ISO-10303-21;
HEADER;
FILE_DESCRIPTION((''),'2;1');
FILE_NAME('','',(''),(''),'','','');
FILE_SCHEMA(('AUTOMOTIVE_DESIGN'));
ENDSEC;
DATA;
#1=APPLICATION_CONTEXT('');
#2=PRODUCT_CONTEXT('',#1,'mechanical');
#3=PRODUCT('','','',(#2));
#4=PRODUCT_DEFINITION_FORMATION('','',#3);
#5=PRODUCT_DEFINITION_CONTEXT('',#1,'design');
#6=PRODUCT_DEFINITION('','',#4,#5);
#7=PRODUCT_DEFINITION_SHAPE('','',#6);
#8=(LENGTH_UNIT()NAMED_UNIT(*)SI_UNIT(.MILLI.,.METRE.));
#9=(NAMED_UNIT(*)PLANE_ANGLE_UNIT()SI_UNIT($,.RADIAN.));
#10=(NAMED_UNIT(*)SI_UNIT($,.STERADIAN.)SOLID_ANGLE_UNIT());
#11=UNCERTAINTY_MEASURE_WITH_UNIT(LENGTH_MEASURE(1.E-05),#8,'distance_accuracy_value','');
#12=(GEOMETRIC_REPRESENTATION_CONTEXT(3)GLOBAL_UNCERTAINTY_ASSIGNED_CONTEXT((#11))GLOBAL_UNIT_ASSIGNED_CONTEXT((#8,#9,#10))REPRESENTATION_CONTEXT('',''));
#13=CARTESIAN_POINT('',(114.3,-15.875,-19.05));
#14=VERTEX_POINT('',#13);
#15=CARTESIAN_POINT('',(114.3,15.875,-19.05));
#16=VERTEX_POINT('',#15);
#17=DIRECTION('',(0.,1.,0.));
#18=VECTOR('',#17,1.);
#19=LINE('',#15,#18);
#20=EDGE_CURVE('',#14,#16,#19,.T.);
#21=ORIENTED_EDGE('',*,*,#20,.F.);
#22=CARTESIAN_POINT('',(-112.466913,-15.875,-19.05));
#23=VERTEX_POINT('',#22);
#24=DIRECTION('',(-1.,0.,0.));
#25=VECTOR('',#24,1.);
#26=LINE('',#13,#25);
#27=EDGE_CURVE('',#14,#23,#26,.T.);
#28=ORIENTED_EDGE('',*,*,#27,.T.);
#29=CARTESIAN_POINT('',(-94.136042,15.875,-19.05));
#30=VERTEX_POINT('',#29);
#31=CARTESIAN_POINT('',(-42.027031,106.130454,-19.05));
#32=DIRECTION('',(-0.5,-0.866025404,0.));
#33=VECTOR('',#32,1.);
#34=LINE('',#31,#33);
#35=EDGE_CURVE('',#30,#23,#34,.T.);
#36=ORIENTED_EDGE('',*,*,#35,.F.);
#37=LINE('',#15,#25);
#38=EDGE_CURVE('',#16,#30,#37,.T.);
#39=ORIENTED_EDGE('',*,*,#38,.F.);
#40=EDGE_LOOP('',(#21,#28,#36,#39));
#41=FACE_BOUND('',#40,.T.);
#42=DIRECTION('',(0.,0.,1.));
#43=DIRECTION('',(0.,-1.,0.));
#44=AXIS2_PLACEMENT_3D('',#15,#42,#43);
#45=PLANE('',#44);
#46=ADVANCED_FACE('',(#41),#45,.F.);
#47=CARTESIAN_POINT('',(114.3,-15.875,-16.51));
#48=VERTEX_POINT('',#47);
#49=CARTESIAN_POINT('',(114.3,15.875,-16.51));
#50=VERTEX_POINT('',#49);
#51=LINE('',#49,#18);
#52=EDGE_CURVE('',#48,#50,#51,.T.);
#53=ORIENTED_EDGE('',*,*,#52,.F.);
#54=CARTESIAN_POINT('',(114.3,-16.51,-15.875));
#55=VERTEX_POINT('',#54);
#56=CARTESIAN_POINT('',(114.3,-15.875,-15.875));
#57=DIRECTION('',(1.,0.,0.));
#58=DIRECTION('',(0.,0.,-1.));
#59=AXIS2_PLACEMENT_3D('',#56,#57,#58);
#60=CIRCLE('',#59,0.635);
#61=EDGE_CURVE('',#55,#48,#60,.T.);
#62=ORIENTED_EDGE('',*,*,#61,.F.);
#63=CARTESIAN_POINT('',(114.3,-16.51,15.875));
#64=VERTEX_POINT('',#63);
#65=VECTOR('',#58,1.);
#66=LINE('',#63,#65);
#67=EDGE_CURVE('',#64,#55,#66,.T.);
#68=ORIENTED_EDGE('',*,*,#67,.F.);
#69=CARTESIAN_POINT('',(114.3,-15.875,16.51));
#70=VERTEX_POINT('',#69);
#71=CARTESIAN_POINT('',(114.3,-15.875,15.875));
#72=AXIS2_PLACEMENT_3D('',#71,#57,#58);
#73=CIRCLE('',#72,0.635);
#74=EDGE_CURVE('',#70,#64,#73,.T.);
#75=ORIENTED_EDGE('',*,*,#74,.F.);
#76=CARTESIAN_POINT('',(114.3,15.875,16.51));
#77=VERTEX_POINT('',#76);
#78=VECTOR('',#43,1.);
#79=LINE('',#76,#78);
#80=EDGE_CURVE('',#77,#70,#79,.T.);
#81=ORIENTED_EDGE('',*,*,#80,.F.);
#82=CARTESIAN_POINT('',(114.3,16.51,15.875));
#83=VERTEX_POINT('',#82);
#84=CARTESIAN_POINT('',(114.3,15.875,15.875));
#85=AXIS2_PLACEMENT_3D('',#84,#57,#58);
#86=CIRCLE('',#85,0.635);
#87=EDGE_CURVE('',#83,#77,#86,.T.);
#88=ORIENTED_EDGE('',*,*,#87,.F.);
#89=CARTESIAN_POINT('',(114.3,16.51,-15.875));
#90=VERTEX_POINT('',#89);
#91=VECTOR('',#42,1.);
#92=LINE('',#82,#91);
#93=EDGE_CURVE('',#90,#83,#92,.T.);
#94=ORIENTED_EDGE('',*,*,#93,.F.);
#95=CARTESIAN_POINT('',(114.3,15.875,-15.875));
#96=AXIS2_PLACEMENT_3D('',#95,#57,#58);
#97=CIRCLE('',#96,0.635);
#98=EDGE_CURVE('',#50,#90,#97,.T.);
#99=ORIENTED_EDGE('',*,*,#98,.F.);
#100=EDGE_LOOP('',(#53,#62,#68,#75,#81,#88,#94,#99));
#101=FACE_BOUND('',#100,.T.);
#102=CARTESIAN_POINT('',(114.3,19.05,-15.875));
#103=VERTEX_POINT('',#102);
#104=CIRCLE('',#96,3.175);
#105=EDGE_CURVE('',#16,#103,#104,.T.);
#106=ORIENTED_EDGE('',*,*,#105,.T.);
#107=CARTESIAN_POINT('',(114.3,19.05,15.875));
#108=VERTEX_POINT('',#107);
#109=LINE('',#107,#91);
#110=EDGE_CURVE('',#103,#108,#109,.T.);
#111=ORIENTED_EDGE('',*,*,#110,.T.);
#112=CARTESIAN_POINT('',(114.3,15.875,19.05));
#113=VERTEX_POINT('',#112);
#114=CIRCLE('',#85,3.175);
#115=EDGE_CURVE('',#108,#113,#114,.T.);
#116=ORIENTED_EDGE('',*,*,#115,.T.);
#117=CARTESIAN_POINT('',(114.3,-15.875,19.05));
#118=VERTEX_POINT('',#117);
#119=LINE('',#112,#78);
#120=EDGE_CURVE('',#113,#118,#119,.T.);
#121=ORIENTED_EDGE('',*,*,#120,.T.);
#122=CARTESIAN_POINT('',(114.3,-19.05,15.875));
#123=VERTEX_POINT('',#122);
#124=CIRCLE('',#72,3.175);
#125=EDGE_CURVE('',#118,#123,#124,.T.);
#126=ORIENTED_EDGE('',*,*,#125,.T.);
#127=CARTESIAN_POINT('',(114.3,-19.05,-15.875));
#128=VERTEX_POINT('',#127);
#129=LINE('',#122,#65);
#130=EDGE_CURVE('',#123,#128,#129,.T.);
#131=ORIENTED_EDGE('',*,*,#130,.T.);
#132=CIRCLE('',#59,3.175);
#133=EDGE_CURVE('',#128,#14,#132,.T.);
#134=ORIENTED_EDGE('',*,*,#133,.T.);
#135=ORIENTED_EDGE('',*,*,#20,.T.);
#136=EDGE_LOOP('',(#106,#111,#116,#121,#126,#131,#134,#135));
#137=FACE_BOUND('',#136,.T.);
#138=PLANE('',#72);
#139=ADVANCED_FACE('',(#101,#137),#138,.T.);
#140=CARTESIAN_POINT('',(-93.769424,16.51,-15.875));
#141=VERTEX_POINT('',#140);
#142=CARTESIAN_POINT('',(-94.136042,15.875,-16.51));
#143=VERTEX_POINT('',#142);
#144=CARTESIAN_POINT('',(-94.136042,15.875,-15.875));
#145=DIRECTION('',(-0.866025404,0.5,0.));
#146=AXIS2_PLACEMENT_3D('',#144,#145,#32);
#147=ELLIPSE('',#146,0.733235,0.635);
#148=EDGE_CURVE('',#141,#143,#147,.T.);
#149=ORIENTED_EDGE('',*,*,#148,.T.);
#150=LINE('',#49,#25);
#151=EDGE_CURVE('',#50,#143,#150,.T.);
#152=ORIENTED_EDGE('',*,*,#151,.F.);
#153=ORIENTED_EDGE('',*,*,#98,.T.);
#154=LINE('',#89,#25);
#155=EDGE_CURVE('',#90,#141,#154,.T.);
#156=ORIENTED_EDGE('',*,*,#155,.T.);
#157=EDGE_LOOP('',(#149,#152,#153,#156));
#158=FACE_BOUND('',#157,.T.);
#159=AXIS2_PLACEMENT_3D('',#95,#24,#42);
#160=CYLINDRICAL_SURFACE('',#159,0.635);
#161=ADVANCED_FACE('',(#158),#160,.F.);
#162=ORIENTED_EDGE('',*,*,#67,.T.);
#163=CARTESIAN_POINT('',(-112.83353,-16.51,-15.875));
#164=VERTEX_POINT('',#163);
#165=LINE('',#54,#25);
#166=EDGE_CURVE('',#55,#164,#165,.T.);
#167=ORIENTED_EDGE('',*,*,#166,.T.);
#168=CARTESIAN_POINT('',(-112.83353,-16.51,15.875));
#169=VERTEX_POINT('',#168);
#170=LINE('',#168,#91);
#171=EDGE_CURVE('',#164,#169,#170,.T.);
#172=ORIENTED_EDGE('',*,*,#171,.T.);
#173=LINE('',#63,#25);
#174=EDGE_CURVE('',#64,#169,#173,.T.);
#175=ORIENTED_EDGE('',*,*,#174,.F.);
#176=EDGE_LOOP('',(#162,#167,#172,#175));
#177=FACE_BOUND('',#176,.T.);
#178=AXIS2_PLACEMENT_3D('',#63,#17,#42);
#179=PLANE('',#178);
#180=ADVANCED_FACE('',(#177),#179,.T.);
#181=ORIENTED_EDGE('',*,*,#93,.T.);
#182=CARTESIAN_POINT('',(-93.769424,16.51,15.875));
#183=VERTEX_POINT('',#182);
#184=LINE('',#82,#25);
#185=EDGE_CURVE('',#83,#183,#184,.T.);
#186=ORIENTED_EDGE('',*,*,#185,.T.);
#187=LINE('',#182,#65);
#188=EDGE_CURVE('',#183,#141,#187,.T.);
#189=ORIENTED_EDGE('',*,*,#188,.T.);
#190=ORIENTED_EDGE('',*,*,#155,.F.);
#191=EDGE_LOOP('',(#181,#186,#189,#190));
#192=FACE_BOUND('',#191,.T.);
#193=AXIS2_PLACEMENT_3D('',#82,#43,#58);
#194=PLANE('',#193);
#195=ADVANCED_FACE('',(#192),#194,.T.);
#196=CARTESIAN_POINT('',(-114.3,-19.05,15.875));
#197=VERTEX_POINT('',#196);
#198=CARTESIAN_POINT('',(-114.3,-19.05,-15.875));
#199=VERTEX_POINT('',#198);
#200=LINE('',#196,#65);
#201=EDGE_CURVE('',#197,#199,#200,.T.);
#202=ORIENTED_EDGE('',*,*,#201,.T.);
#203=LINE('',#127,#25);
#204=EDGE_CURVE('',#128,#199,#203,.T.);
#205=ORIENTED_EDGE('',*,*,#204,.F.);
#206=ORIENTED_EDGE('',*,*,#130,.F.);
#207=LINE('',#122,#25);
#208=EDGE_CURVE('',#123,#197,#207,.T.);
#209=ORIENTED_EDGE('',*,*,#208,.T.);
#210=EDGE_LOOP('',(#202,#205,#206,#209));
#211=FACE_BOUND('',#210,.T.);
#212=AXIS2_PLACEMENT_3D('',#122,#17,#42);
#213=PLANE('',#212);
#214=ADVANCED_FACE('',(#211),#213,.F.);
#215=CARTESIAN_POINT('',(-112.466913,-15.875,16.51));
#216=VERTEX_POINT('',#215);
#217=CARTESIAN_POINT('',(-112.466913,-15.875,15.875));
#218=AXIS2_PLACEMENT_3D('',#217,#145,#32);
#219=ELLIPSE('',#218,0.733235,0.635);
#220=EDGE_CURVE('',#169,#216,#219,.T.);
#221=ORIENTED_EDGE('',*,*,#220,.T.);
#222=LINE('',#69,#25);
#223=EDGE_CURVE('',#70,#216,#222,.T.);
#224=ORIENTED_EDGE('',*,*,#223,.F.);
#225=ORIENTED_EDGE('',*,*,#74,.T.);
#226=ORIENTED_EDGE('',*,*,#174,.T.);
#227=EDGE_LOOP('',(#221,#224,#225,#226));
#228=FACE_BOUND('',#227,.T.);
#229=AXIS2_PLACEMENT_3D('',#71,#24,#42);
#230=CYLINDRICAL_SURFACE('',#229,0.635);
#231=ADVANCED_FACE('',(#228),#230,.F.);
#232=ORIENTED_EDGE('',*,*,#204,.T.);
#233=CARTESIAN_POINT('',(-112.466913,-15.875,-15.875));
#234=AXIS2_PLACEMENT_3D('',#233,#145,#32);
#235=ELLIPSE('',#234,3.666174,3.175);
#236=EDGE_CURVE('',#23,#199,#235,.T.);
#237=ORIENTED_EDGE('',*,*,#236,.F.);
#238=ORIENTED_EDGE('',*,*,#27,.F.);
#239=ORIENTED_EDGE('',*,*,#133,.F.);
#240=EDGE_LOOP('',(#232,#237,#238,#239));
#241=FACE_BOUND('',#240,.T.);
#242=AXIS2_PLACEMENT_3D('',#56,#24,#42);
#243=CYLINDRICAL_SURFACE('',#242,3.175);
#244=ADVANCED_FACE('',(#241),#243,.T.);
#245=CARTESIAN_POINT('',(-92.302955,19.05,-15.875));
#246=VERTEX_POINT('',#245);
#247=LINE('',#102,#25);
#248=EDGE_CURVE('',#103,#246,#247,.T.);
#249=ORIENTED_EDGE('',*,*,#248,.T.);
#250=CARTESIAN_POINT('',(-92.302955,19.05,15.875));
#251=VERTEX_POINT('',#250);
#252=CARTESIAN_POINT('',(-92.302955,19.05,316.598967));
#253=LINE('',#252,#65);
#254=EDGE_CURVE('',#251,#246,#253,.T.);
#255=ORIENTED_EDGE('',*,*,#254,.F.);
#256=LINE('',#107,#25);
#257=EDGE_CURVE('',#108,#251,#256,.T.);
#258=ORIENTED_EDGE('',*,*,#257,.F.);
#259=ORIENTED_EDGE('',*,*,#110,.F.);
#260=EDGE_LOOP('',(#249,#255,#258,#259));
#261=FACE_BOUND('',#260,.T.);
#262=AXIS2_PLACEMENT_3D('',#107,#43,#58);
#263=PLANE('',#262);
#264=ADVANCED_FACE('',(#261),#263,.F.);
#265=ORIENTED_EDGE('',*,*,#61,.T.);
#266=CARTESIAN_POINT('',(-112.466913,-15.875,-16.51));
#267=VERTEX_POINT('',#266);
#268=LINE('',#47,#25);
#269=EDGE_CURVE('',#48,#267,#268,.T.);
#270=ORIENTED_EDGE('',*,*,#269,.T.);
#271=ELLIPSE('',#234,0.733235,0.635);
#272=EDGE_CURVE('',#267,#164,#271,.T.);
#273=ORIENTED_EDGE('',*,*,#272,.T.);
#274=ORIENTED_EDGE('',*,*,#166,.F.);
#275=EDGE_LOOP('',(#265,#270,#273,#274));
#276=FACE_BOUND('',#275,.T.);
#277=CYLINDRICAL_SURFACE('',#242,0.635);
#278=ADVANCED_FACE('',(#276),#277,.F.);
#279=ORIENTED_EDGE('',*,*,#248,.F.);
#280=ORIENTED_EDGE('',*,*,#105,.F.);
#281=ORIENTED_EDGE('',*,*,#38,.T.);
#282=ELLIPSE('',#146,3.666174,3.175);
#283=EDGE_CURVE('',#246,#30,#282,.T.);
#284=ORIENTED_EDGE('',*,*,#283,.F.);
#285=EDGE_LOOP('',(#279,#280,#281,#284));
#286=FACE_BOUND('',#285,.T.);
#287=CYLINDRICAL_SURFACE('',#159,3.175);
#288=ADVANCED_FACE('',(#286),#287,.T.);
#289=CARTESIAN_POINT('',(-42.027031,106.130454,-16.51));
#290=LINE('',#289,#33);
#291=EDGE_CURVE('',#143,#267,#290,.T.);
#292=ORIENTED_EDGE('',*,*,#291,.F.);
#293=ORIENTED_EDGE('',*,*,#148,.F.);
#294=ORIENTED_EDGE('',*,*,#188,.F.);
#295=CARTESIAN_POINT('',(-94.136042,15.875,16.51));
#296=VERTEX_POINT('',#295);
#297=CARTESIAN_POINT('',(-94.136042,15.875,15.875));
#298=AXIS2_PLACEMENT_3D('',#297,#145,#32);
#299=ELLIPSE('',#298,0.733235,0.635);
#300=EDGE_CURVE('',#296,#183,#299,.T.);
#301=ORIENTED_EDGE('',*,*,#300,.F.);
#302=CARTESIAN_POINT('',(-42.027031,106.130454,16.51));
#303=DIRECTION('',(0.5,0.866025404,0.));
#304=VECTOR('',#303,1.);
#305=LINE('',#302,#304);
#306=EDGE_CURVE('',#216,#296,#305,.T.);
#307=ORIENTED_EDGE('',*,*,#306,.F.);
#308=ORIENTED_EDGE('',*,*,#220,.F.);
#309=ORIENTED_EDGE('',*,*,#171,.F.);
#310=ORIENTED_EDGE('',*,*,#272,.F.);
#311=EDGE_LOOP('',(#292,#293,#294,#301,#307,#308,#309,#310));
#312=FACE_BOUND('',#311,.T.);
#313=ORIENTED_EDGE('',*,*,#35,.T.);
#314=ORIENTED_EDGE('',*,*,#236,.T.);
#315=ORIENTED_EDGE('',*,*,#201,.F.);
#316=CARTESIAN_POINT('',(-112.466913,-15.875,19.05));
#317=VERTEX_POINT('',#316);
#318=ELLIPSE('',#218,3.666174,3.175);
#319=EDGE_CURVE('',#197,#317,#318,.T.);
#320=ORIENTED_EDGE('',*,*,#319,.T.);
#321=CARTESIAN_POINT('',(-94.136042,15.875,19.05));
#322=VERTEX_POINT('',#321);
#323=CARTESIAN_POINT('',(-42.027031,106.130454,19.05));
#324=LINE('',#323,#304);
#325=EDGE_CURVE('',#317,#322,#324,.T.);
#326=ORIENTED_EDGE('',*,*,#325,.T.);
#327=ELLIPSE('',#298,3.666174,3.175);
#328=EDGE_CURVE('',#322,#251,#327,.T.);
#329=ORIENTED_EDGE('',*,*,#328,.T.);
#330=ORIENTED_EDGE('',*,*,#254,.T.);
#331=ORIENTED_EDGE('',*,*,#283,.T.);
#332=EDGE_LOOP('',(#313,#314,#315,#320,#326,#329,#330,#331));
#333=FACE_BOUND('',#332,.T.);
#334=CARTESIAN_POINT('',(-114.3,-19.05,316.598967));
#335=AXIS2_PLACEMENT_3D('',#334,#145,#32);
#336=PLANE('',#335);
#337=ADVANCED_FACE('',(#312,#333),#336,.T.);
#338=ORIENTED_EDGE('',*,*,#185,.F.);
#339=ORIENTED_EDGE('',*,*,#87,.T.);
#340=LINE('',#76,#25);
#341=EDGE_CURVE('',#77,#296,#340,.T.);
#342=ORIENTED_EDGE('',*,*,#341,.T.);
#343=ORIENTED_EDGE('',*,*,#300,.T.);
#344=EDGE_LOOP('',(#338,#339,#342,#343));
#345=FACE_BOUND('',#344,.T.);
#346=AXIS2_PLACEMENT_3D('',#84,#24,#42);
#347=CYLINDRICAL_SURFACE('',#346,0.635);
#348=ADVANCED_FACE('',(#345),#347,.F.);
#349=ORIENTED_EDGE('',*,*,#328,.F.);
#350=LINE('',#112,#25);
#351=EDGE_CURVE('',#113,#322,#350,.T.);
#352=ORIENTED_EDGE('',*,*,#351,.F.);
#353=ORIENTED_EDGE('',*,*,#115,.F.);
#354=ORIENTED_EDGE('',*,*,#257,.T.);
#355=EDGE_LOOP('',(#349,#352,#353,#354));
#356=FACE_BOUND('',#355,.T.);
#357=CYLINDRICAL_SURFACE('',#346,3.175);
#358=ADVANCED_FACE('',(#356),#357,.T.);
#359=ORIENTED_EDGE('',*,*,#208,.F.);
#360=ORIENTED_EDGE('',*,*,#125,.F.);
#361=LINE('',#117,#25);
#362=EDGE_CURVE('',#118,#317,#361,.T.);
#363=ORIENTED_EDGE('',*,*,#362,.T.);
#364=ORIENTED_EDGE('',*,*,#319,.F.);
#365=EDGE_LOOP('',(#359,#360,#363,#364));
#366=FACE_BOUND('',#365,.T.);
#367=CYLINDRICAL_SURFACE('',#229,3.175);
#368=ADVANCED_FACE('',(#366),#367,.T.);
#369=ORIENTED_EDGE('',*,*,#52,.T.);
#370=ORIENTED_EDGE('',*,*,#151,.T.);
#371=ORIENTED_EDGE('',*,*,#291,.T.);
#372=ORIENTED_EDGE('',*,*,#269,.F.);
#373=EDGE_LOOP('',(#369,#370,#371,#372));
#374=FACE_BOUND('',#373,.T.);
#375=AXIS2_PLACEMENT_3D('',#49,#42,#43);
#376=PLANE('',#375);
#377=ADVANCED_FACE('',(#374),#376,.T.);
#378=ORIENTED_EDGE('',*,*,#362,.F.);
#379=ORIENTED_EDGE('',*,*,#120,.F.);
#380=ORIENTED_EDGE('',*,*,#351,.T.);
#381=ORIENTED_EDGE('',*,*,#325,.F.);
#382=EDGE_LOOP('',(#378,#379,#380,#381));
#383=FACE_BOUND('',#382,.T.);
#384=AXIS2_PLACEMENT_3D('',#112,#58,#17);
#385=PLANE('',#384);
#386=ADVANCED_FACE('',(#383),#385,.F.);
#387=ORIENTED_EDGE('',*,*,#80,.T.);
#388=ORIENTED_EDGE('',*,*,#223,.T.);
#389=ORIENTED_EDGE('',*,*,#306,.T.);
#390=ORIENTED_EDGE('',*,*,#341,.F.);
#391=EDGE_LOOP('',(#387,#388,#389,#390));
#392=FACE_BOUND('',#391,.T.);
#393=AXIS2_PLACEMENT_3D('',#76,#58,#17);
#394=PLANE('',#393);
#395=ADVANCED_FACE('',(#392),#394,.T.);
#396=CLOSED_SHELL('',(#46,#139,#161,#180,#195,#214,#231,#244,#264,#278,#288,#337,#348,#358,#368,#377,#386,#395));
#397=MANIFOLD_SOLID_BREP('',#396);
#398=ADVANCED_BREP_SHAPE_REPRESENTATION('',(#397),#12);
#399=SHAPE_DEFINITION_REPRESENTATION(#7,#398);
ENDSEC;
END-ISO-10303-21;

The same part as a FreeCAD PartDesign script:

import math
import FreeCAD as App
import Part
import Sketcher
Q = App.Units.Quantity

doc = App.newDocument("Part")
body = doc.addObject("PartDesign::Body", "Body")

sketch1 = doc.addObject("Sketcher::SketchObject", "Sketch")
body.addObject(sketch1)
sketch1.AttachmentSupport = (doc.YZ_Plane, [""])
sketch1.MapMode = "FlatFace"
sketch1.addGeometry(Part.LineSegment(App.Vector(19.1, -15.9, 0), App.Vector(19.1, 15.9, 0)), False)
sketch1.addGeometry(Part.ArcOfCircle(Part.Circle(App.Vector(15.9, 15.9, 0), App.Vector(0, 0, 1), 3.2), math.radians(0), math.radians(90)), False)
sketch1.addGeometry(Part.LineSegment(App.Vector(15.9, 19.1, 0), App.Vector(-15.9, 19.1, 0)), False)
sketch1.addGeometry(Part.ArcOfCircle(Part.Circle(App.Vector(-15.9, 15.9, 0), App.Vector(0, 0, 1), 3.2), math.radians(90), math.radians(180)), False)
sketch1.addGeometry(Part.LineSegment(App.Vector(-19.1, 15.9, 0), App.Vector(-19.1, -15.9, 0)), False)
sketch1.addGeometry(Part.ArcOfCircle(Part.Circle(App.Vector(-15.9, -15.9, 0), App.Vector(0, 0, 1), 3.2), math.radians(-180), math.radians(-90)), False)
sketch1.addGeometry(Part.LineSegment(App.Vector(-15.9, -19.1, 0), App.Vector(15.9, -19.1, 0)), False)
sketch1.addGeometry(Part.ArcOfCircle(Part.Circle(App.Vector(15.9, -15.9, 0), App.Vector(0, 0, 1), 3.2), math.radians(-90), math.radians(0)), False)
sketch1.addGeometry(Part.LineSegment(App.Vector(16.5, 15.9, 0), App.Vector(16.5, -15.9, 0)), False)
sketch1.addGeometry(Part.ArcOfCircle(Part.Circle(App.Vector(15.9, -15.9, 0), App.Vector(0, 0, 1), 0.6), math.radians(-90), math.radians(0)), False)
sketch1.addGeometry(Part.LineSegment(App.Vector(15.9, -16.5, 0), App.Vector(-15.9, -16.5, 0)), False)
sketch1.addGeometry(Part.ArcOfCircle(Part.Circle(App.Vector(-15.9, -15.9, 0), App.Vector(0, 0, 1), 0.6), math.radians(180), math.radians(270)), False)
sketch1.addGeometry(Part.LineSegment(App.Vector(-16.5, -15.9, 0), App.Vector(-16.5, 15.9, 0)), False)
sketch1.addGeometry(Part.ArcOfCircle(Part.Circle(App.Vector(-15.9, 15.9, 0), App.Vector(0, 0, 1), 0.6), math.radians(90), math.radians(180)), False)
sketch1.addGeometry(Part.LineSegment(App.Vector(-15.9, 16.5, 0), App.Vector(15.9, 16.5, 0)), False)
sketch1.addGeometry(Part.ArcOfCircle(Part.Circle(App.Vector(15.9, 15.9, 0), App.Vector(0, 0, 1), 0.6), math.radians(0), math.radians(90)), False)
sketch1.addConstraint(Sketcher.Constraint("Tangent", 0, 2, 1, 1))
sketch1.addConstraint(Sketcher.Constraint("Tangent", 1, 2, 2, 1))
sketch1.addConstraint(Sketcher.Constraint("Tangent", 2, 2, 3, 1))
sketch1.addConstraint(Sketcher.Constraint("Tangent", 3, 2, 4, 1))
sketch1.addConstraint(Sketcher.Constraint("Tangent", 4, 2, 5, 1))
sketch1.addConstraint(Sketcher.Constraint("Tangent", 5, 2, 6, 1))
sketch1.addConstraint(Sketcher.Constraint("Tangent", 6, 2, 7, 1))
sketch1.addConstraint(Sketcher.Constraint("Tangent", 7, 2, 0, 1))
sketch1.addConstraint(Sketcher.Constraint("Tangent", 8, 2, 9, 2))
sketch1.addConstraint(Sketcher.Constraint("Tangent", 9, 1, 10, 1))
sketch1.addConstraint(Sketcher.Constraint("Tangent", 10, 2, 11, 2))
sketch1.addConstraint(Sketcher.Constraint("Tangent", 11, 1, 12, 1))
sketch1.addConstraint(Sketcher.Constraint("Tangent", 12, 2, 13, 2))
sketch1.addConstraint(Sketcher.Constraint("Tangent", 13, 1, 14, 1))
sketch1.addConstraint(Sketcher.Constraint("Tangent", 14, 2, 15, 2))
sketch1.addConstraint(Sketcher.Constraint("Tangent", 15, 1, 8, 1))
sketch1.addConstraint(Sketcher.Constraint("Vertical", 0))
sketch1.addConstraint(Sketcher.Constraint("Horizontal", 2))
sketch1.addConstraint(Sketcher.Constraint("Vertical", 4))
sketch1.addConstraint(Sketcher.Constraint("Horizontal", 6))
sketch1.addConstraint(Sketcher.Constraint("Vertical", 8))
sketch1.addConstraint(Sketcher.Constraint("Horizontal", 10))
sketch1.addConstraint(Sketcher.Constraint("Vertical", 12))
sketch1.addConstraint(Sketcher.Constraint("Horizontal", 14))
sketch1.addConstraint(Sketcher.Constraint("Coincident", 9, 3, 7, 3))
sketch1.addConstraint(Sketcher.Constraint("Coincident", 11, 3, 5, 3))
sketch1.addConstraint(Sketcher.Constraint("Coincident", 13, 3, 3, 3))
sketch1.addConstraint(Sketcher.Constraint("Equal", 1, 3))
sketch1.addConstraint(Sketcher.Constraint("Equal", 3, 5))
sketch1.addConstraint(Sketcher.Constraint("Equal", 5, 7))
sketch1.addConstraint(Sketcher.Constraint("Equal", 13, 15))
sketch1.addConstraint(Sketcher.Constraint("Symmetric", 1, 3, 5, 3, -1, 1))
sketch1.addConstraint(Sketcher.Constraint("Equal", 14, 0))
sketch1.addConstraint(Sketcher.Constraint("Radius", 1, Q("0.125 in")))
sketch1.addConstraint(Sketcher.Constraint("Radius", 9, Q("0.025 in")))
sketch1.addConstraint(Sketcher.Constraint("DistanceX", 2, 2, 2, 1, Q("1.25 in")))
pad1 = doc.addObject("PartDesign::Pad", "Pad")
body.addObject(pad1)
pad1.Profile = sketch1
pad1.Length = Q("9 in")
pad1.Midplane = True

sketch2 = doc.addObject("Sketcher::SketchObject", "Sketch001")
body.addObject(sketch2)
sketch2.AttachmentSupport = (doc.XY_Plane, [""])
sketch2.MapMode = "FlatFace"
sketch2.AttachmentOffset = App.Placement(App.Vector(0, 0, 0.75 * 25.4), App.Rotation())
sketch2.addGeometry(Part.LineSegment(App.Vector(-351, -429, 0), App.Vector(-114, -19, 0)), False)
sketch2.addGeometry(Part.LineSegment(App.Vector(-114, -19, 0), App.Vector(-92, 19, 0)), False)
sketch2.addGeometry(Part.LineSegment(App.Vector(-92, 19, 0), App.Vector(144, 429, 0)), False)
sketch2.addGeometry(Part.LineSegment(App.Vector(144, 429, 0), App.Vector(-676, 903, 0)), False)
sketch2.addGeometry(Part.LineSegment(App.Vector(-676, 903, 0), App.Vector(-1171, 44, 0)), False)
sketch2.addGeometry(Part.LineSegment(App.Vector(-1171, 44, 0), App.Vector(-351, -429, 0)), False)
sketch2.addConstraint(Sketcher.Constraint("Coincident", 0, 2, 1, 1))
sketch2.addConstraint(Sketcher.Constraint("Coincident", 1, 2, 2, 1))
sketch2.addConstraint(Sketcher.Constraint("Coincident", 2, 2, 3, 1))
sketch2.addConstraint(Sketcher.Constraint("Coincident", 3, 2, 4, 1))
sketch2.addConstraint(Sketcher.Constraint("Coincident", 4, 2, 5, 1))
sketch2.addConstraint(Sketcher.Constraint("Coincident", 5, 2, 0, 1))
sketch2.addConstraint(Sketcher.Constraint("Parallel", 0, 1))
sketch2.addConstraint(Sketcher.Constraint("Parallel", 1, 2))
sketch2.addConstraint(Sketcher.Constraint("Perpendicular", 2, 3))
sketch2.addConstraint(Sketcher.Constraint("Perpendicular", 3, 4))
sketch2.addConstraint(Sketcher.Constraint("Perpendicular", 4, 5))
sketch2.addConstraint(Sketcher.Constraint("Equal", 0, 2))
sketch2.addConstraint(Sketcher.Constraint("Angle", 0, Q("60 deg")))
sketch2.addConstraint(Sketcher.Constraint("DistanceX", 0, 2, -1, 1, Q("4.5 in")))
sketch2.addConstraint(Sketcher.Constraint("DistanceY", 0, 2, 1, 2, Q("1.5 in")))
sketch2.addConstraint(Sketcher.Constraint("DistanceY", 0, 2, -1, 1, Q("0.75 in")))
sketch2.addConstraint(Sketcher.Constraint("Distance", 4, 991.0071))
sketch2.addConstraint(Sketcher.Constraint("Distance", 3, 947.01301))
pocket1 = doc.addObject("PartDesign::Pocket", "Pocket")
body.addObject(pocket1)
pocket1.Profile = sketch2
pocket1.Type = "ThroughAll"
pocket1.Midplane = True

doc.recompute()
